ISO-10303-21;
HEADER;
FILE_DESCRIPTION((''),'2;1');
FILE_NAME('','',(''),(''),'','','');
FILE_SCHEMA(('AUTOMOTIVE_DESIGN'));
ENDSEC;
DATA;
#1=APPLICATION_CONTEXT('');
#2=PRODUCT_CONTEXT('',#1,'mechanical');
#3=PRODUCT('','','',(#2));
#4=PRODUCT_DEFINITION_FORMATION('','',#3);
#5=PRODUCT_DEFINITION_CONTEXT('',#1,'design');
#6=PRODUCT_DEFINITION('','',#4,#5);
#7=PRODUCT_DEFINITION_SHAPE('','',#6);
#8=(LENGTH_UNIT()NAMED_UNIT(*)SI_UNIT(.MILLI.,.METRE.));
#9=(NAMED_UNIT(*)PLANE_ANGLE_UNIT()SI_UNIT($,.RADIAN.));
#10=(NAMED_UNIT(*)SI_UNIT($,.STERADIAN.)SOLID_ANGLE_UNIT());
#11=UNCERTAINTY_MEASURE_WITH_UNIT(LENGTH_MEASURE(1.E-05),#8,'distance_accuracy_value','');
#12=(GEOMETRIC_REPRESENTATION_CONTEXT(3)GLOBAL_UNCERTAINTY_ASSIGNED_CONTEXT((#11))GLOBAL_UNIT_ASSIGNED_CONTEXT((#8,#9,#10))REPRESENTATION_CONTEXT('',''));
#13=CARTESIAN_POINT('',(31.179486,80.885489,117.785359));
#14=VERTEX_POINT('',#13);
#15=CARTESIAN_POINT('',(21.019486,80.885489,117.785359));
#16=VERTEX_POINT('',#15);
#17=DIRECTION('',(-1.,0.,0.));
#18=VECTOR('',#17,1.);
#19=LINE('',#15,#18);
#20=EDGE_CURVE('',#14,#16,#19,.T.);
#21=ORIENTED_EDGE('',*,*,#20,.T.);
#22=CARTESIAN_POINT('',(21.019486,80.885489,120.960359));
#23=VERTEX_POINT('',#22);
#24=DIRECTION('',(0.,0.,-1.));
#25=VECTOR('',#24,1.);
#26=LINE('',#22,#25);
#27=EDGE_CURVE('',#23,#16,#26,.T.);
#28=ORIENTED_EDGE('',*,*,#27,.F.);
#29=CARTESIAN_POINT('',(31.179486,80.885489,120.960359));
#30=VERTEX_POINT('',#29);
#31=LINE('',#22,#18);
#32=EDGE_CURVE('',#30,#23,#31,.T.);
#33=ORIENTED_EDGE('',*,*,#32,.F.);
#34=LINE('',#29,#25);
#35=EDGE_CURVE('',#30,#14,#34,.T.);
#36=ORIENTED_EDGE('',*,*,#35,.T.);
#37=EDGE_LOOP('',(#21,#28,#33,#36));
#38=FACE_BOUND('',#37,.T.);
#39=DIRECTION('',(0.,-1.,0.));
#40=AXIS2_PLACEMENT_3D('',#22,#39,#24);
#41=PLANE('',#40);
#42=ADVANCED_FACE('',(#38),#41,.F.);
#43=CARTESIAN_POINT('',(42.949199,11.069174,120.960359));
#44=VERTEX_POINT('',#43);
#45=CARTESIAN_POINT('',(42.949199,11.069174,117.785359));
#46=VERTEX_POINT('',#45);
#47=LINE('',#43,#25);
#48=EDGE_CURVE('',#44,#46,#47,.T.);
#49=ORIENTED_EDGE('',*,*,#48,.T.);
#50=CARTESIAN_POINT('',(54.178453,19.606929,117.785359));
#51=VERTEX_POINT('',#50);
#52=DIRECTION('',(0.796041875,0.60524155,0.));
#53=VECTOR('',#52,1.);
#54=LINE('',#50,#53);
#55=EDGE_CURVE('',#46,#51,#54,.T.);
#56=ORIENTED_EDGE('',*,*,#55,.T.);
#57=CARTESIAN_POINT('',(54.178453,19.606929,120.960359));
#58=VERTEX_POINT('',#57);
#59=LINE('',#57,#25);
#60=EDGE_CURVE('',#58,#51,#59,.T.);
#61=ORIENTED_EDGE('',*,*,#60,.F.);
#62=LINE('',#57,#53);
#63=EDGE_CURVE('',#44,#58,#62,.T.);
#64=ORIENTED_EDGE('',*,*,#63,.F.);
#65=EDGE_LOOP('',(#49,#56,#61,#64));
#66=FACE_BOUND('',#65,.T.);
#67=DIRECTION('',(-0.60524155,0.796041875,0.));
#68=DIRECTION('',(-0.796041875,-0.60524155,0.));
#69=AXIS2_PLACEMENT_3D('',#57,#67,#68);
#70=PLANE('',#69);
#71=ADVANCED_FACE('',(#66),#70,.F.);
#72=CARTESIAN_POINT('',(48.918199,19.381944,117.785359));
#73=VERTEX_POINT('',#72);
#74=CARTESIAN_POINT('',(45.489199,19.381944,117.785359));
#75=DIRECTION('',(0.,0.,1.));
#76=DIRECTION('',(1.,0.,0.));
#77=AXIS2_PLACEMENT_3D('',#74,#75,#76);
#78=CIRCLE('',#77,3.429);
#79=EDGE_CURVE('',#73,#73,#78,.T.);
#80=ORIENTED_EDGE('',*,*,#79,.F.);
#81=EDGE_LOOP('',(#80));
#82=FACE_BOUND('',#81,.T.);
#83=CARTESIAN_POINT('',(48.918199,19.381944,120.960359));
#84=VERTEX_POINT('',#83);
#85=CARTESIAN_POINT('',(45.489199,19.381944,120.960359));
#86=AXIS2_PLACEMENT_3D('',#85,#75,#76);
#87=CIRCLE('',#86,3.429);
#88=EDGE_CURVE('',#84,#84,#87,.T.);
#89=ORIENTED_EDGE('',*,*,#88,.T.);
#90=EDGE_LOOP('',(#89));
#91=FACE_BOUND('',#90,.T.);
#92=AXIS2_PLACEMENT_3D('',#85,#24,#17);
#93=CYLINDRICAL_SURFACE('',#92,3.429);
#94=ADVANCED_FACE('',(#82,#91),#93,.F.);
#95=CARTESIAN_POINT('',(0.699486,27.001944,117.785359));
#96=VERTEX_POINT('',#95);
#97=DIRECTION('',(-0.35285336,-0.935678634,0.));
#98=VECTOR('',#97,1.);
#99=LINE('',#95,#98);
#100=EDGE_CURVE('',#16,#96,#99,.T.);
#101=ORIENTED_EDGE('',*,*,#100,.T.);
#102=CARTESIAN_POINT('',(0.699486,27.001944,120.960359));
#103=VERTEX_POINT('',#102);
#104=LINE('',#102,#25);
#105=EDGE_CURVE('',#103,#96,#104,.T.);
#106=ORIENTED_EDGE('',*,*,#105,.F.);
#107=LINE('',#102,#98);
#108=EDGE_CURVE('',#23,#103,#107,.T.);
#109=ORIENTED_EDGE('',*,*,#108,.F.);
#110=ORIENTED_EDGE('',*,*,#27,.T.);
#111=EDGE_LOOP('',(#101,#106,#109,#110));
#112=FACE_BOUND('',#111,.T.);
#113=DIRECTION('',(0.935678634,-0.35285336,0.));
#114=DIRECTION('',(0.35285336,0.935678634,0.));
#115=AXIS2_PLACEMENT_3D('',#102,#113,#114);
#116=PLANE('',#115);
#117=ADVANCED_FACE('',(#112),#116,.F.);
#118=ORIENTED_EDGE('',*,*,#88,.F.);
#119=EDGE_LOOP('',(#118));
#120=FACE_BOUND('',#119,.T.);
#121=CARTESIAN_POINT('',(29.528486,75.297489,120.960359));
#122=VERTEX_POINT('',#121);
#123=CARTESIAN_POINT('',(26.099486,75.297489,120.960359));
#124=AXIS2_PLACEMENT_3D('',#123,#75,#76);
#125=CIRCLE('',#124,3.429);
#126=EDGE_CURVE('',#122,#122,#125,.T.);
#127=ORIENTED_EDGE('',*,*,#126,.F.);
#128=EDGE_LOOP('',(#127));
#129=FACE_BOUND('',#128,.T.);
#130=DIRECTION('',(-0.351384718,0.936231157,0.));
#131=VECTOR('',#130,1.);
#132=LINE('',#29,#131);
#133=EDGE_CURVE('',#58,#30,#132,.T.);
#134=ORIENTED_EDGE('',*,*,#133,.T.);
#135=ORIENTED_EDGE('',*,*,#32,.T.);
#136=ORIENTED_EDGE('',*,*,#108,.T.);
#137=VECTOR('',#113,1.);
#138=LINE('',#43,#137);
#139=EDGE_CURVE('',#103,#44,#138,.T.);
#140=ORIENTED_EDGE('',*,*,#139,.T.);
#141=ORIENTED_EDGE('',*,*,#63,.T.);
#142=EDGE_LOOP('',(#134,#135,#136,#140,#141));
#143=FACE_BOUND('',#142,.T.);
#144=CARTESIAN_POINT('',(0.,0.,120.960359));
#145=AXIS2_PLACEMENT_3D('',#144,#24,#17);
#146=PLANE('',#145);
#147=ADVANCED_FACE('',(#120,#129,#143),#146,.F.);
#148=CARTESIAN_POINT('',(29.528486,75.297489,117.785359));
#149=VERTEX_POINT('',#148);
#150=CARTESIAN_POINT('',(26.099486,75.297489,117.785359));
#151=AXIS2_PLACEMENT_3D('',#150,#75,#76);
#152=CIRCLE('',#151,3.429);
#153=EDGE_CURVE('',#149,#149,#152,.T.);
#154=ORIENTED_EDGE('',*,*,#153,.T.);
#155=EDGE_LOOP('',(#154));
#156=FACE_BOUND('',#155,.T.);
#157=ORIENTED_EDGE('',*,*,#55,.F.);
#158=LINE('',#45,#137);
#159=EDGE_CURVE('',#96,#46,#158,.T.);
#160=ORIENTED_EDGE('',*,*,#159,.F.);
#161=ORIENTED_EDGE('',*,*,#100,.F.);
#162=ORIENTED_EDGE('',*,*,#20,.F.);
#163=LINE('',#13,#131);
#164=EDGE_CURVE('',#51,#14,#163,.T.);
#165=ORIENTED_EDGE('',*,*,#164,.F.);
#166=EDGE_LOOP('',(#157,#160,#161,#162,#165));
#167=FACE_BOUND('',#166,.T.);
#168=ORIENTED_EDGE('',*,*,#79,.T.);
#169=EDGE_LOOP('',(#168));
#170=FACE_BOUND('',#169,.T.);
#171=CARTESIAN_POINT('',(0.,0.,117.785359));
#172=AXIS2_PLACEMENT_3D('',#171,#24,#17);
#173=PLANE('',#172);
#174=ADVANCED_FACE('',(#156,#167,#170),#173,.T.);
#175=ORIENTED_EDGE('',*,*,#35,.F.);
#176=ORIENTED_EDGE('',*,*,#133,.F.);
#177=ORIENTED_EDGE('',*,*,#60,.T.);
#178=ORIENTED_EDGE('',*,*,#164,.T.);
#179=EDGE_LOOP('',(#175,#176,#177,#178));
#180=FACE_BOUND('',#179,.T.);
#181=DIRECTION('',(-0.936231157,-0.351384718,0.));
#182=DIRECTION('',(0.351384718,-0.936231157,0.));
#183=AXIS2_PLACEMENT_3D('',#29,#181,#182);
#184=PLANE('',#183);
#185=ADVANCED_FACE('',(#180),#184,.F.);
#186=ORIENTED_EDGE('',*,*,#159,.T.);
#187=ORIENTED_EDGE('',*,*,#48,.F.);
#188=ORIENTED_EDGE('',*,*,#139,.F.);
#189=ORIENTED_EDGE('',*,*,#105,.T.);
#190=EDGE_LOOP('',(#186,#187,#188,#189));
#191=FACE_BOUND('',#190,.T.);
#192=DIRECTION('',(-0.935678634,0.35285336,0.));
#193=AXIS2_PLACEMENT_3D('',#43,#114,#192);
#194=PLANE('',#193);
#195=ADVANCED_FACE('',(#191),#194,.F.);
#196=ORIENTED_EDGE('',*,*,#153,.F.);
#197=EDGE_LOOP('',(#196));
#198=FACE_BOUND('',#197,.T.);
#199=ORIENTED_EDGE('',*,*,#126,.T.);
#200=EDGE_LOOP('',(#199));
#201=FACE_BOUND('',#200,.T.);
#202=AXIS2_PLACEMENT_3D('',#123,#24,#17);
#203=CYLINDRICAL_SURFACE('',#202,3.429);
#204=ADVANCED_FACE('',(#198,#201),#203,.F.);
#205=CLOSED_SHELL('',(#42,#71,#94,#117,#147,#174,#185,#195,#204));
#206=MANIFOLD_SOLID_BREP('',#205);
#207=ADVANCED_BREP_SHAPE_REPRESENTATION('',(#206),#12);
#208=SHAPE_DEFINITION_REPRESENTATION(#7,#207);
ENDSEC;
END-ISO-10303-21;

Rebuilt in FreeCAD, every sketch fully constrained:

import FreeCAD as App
import Part
import Sketcher

V = App.Vector
Q = App.Units.Quantity

doc = App.newDocument("Part")
body = doc.addObject("PartDesign::Body", "Body")

# Sketch on XY plane
sketch1 = body.newObject("Sketcher::SketchObject", "Sketch")
sketch1.AttachmentSupport = (doc.getObject("XY_Plane"), [""])
sketch1.MapMode = "FlatFace"
sketch1.AttachmentOffset = App.Placement(V(0, 0, 117.785359), App.Rotation())
sketch1.addGeometry([
    Part.LineSegment(V(42.9, 11.1, 0), V(54.2, 19.6, 0)),  # 0
    Part.LineSegment(V(54.2, 19.6, 0), V(31.2, 80.9, 0)),  # 1
    Part.LineSegment(V(31.2, 80.9, 0), V(21, 80.9, 0)),  # 2
    Part.LineSegment(V(21, 80.9, 0), V(0.7, 27, 0)),  # 3
    Part.LineSegment(V(0.7, 27, 0), V(42.9, 11.1, 0)),  # 4
    Part.Circle(V(45.5, 19.4, 0), V(0, 0, 1), 3.4),  # 5
    Part.Circle(V(26.1, 75.3, 0), V(0, 0, 1), 3.4),  # 6
], False)
sketch1.addConstraint([
    Sketcher.Constraint("Coincident", 0, 2, 1, 1),
    Sketcher.Constraint("Coincident", 1, 2, 2, 1),
    Sketcher.Constraint("Coincident", 2, 2, 3, 1),
    Sketcher.Constraint("Coincident", 3, 2, 4, 1),
    Sketcher.Constraint("Coincident", 4, 2, 0, 1),
    Sketcher.Constraint("Horizontal", 2),
    Sketcher.Constraint("Equal", 5, 6),
    Sketcher.Constraint("Perpendicular", 3, 4),
    Sketcher.Constraint("Diameter", 5, Q("0.27 in")),
    Sketcher.Constraint("DistanceX", 2, 2, 2, 1, Q("0.4 in")),
    Sketcher.Constraint("DistanceX", 3, 2, 6, 3, Q("1 in")),
    Sketcher.Constraint("DistanceX", 6, 3, 1, 2, Q("0.2 in")),
    Sketcher.Constraint("DistanceY", 5, 3, 3, 2, Q("0.3 in")),
    Sketcher.Constraint("DistanceX", 4, 2, 5, 3, Q("0.1 in")),
    Sketcher.Constraint("DistanceY", 6, 3, 1, 2, Q("0.22 in")),
    Sketcher.Constraint("DistanceX", -1, 1, 5, 3, 45.489199),
    Sketcher.Constraint("Distance", 0, 14.106361),
    Sketcher.Constraint("Distance", 3, 57.587662),
    Sketcher.Constraint("DistanceY", -1, 1, 6, 3, 75.297489),
    Sketcher.Constraint("DistanceY", -1, 1, 0, 2, 19.606929),
    Sketcher.Constraint("DistanceY", 4, 2, 5, 3, 8.312771),
])
pad1 = body.newObject("PartDesign::Pad", "Pad")
pad1.Profile = sketch1
pad1.Length = Q("0.125 in")

doc.recompute()
